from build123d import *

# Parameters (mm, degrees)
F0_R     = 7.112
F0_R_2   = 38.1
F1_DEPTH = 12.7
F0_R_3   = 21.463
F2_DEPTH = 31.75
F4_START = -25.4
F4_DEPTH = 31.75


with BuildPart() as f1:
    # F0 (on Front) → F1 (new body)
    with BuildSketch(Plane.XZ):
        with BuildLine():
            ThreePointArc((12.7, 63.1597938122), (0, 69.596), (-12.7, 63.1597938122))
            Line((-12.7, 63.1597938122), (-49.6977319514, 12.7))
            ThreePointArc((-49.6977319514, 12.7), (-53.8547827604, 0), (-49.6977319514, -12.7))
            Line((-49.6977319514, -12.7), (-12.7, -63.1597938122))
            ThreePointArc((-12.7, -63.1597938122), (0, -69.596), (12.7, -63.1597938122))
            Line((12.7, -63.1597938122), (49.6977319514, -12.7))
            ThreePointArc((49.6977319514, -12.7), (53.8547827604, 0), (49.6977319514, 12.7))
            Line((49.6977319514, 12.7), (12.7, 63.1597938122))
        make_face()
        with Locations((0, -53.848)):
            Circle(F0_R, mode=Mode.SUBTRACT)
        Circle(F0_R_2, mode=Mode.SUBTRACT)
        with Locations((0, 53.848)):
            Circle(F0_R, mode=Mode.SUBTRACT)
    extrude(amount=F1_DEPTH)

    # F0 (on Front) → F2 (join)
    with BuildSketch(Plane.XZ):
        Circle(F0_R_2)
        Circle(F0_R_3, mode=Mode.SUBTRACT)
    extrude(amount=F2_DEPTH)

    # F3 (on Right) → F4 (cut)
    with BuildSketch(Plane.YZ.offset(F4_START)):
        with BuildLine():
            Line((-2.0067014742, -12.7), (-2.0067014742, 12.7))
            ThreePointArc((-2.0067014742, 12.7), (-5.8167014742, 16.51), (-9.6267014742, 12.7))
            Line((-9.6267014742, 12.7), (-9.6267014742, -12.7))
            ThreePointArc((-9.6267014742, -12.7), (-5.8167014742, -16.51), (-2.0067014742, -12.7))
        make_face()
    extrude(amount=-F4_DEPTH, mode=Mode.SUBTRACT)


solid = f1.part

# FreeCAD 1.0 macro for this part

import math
import FreeCAD as App
import Part
import Sketcher

V = App.Vector
Q = App.Units.Quantity

doc = App.newDocument("Part")
body = doc.addObject("PartDesign::Body", "Body")

# Sketch on XZ plane
sketch1 = doc.addObject("Sketcher::SketchObject", "Sketch")
body.addObject(sketch1)
sketch1.AttachmentSupport = (doc.XZ_Plane, [""])
sketch1.MapMode = "FlatFace"
sketch1.addGeometry(Part.ArcOfCircle(Part.Circle(V(0, 54, 0), V(0, 0, 1), 16), math.radians(36), math.radians(144)), False)
sketch1.addGeometry(Part.LineSegment(V(-13, 63, 0), V(-50, 13, 0)), False)
sketch1.addGeometry(Part.ArcOfCircle(Part.Circle(V(-32, 0, 0), V(0, 0, 1), 21), math.radians(144), math.radians(216)), False)
sketch1.addGeometry(Part.LineSegment(V(-50, -13, 0), V(-13, -63, 0)), False)
sketch1.addGeometry(Part.ArcOfCircle(Part.Circle(V(0, -54, 0), V(0, 0, 1), 16), math.radians(-144), math.radians(-36)), False)
sketch1.addGeometry(Part.LineSegment(V(13, -63, 0), V(50, -13, 0)), False)
sketch1.addGeometry(Part.ArcOfCircle(Part.Circle(V(32, 0, 0), V(0, 0, 1), 21), math.radians(-36), math.radians(36)), False)
sketch1.addGeometry(Part.LineSegment(V(50, 13, 0), V(13, 63, 0)), False)
sketch1.addGeometry(Part.Circle(V(0, -54, 0), V(0, 0, 1), 7), False)
sketch1.addGeometry(Part.Circle(V(0, 0, 0), V(0, 0, 1), 38), False)
sketch1.addGeometry(Part.Circle(V(0, 54, 0), V(0, 0, 1), 7), False)
sketch1.addConstraint(Sketcher.Constraint("Tangent", 0, 2, 1, 1))
sketch1.addConstraint(Sketcher.Constraint("Tangent", 1, 2, 2, 1))
sketch1.addConstraint(Sketcher.Constraint("Tangent", 2, 2, 3, 1))
sketch1.addConstraint(Sketcher.Constraint("Tangent", 3, 2, 4, 1))
sketch1.addConstraint(Sketcher.Constraint("Tangent", 4, 2, 5, 1))
sketch1.addConstraint(Sketcher.Constraint("Tangent", 5, 2, 6, 1))
sketch1.addConstraint(Sketcher.Constraint("Tangent", 6, 2, 7, 1))
sketch1.addConstraint(Sketcher.Constraint("Tangent", 7, 2, 0, 1))
sketch1.addConstraint(Sketcher.Constraint("Coincident", 9, 3, -1, 1))
sketch1.addConstraint(Sketcher.Constraint("Coincident", 8, 3, 4, 3))
sketch1.addConstraint(Sketcher.Constraint("Coincident", 10, 3, 0, 3))
sketch1.addConstraint(Sketcher.Constraint("Equal", 0, 4))
sketch1.addConstraint(Sketcher.Constraint("Equal", 2, 6))
sketch1.addConstraint(Sketcher.Constraint("Equal", 8, 10))
sketch1.addConstraint(Sketcher.Constraint("Symmetric", 0, 3, 4, 3, -1, 1))
sketch1.addConstraint(Sketcher.Constraint("Symmetric", 2, 3, 6, 3, -1, 1))
sketch1.addConstraint(Sketcher.Constraint("Symmetric", 3, 2, 4, 2, -2))
sketch1.addConstraint(Sketcher.Constraint("Diameter", 9, Q("3 in")))
sketch1.addConstraint(Sketcher.Constraint("Diameter", 8, Q("0.56 in")))
sketch1.addConstraint(Sketcher.Constraint("Radius", 0, Q("0.62 in")))
sketch1.addConstraint(Sketcher.Constraint("DistanceY", 2, 2, 1, 2, Q("1 in")))
sketch1.addConstraint(Sketcher.Constraint("DistanceX", 3, 2, 4, 2, Q("1 in")))
sketch1.addConstraint(Sketcher.Constraint("DistanceY", -1, 1, 0, 3, Q("2.12 in")))
pad1 = doc.addObject("PartDesign::Pad", "Pad")
body.addObject(pad1)
pad1.Profile = sketch1
pad1.Length = Q("0.5 in")

# Sketch on XZ plane
sketch2 = doc.addObject("Sketcher::SketchObject", "Sketch001")
body.addObject(sketch2)
sketch2.AttachmentSupport = (doc.XZ_Plane, [""])
sketch2.MapMode = "FlatFace"
sketch2.addGeometry(Part.Circle(V(0, 0, 0), V(0, 0, 1), 38), False)
sketch2.addGeometry(Part.Circle(V(0, 0, 0), V(0, 0, 1), 21), False)
sketch2.addConstraint(Sketcher.Constraint("Coincident", 0, 3, -1, 1))
sketch2.addConstraint(Sketcher.Constraint("Coincident", 1, 3, -1, 1))
sketch2.addConstraint(Sketcher.Constraint("Diameter", 0, Q("3 in")))
sketch2.addConstraint(Sketcher.Constraint("Diameter", 1, Q("1.69 in")))
pad2 = doc.addObject("PartDesign::Pad", "Pad001")
body.addObject(pad2)
pad2.Profile = sketch2
pad2.Length = Q("1.25 in")

# Sketch on YZ plane
sketch3 = doc.addObject("Sketcher::SketchObject", "Sketch002")
body.addObject(sketch3)
sketch3.AttachmentSupport = (doc.YZ_Plane, [""])
sketch3.MapMode = "FlatFace"
sketch3.AttachmentOffset = App.Placement(V(0, 0, -1 * 25.4), App.Rotation())
sketch3.addGeometry(Part.LineSegment(V(-2, -12.7, 0), V(-2, 12.7, 0)), False)
sketch3.addGeometry(Part.ArcOfCircle(Part.Circle(V(-5.8, 12.7, 0), V(0, 0, 1), 3.8), math.radians(0), math.radians(180)), False)
sketch3.addGeometry(Part.LineSegment(V(-9.6, 12.7, 0), V(-9.6, -12.7, 0)), False)
sketch3.addGeometry(Part.ArcOfCircle(Part.Circle(V(-5.8, -12.7, 0), V(0, 0, 1), 3.8), math.radians(180), math.radians(360)), False)
sketch3.addConstraint(Sketcher.Constraint("Tangent", 0, 2, 1, 1))
sketch3.addConstraint(Sketcher.Constraint("Tangent", 1, 2, 2, 1))
sketch3.addConstraint(Sketcher.Constraint("Tangent", 2, 2, 3, 1))
sketch3.addConstraint(Sketcher.Constraint("Tangent", 3, 2, 0, 1))
sketch3.addConstraint(Sketcher.Constraint("Vertical", 0))
sketch3.addConstraint(Sketcher.Constraint("Vertical", 2))
sketch3.addConstraint(Sketcher.Constraint("DistanceY", 0, 1, 0, 2, Q("1 in")))
sketch3.addConstraint(Sketcher.Constraint("Radius", 1, Q("0.15 in")))
sketch3.addConstraint(Sketcher.Constraint("DistanceY", -1, 1, 1, 3, Q("0.5 in")))
sketch3.addConstraint(Sketcher.Constraint("DistanceX", 1, 3, -1, 1, Q("5.816701 mm")))
pocket1 = doc.addObject("PartDesign::Pocket", "Pocket")
body.addObject(pocket1)
pocket1.Profile = sketch3
pocket1.Length = Q("1.25 in")

doc.recompute()
